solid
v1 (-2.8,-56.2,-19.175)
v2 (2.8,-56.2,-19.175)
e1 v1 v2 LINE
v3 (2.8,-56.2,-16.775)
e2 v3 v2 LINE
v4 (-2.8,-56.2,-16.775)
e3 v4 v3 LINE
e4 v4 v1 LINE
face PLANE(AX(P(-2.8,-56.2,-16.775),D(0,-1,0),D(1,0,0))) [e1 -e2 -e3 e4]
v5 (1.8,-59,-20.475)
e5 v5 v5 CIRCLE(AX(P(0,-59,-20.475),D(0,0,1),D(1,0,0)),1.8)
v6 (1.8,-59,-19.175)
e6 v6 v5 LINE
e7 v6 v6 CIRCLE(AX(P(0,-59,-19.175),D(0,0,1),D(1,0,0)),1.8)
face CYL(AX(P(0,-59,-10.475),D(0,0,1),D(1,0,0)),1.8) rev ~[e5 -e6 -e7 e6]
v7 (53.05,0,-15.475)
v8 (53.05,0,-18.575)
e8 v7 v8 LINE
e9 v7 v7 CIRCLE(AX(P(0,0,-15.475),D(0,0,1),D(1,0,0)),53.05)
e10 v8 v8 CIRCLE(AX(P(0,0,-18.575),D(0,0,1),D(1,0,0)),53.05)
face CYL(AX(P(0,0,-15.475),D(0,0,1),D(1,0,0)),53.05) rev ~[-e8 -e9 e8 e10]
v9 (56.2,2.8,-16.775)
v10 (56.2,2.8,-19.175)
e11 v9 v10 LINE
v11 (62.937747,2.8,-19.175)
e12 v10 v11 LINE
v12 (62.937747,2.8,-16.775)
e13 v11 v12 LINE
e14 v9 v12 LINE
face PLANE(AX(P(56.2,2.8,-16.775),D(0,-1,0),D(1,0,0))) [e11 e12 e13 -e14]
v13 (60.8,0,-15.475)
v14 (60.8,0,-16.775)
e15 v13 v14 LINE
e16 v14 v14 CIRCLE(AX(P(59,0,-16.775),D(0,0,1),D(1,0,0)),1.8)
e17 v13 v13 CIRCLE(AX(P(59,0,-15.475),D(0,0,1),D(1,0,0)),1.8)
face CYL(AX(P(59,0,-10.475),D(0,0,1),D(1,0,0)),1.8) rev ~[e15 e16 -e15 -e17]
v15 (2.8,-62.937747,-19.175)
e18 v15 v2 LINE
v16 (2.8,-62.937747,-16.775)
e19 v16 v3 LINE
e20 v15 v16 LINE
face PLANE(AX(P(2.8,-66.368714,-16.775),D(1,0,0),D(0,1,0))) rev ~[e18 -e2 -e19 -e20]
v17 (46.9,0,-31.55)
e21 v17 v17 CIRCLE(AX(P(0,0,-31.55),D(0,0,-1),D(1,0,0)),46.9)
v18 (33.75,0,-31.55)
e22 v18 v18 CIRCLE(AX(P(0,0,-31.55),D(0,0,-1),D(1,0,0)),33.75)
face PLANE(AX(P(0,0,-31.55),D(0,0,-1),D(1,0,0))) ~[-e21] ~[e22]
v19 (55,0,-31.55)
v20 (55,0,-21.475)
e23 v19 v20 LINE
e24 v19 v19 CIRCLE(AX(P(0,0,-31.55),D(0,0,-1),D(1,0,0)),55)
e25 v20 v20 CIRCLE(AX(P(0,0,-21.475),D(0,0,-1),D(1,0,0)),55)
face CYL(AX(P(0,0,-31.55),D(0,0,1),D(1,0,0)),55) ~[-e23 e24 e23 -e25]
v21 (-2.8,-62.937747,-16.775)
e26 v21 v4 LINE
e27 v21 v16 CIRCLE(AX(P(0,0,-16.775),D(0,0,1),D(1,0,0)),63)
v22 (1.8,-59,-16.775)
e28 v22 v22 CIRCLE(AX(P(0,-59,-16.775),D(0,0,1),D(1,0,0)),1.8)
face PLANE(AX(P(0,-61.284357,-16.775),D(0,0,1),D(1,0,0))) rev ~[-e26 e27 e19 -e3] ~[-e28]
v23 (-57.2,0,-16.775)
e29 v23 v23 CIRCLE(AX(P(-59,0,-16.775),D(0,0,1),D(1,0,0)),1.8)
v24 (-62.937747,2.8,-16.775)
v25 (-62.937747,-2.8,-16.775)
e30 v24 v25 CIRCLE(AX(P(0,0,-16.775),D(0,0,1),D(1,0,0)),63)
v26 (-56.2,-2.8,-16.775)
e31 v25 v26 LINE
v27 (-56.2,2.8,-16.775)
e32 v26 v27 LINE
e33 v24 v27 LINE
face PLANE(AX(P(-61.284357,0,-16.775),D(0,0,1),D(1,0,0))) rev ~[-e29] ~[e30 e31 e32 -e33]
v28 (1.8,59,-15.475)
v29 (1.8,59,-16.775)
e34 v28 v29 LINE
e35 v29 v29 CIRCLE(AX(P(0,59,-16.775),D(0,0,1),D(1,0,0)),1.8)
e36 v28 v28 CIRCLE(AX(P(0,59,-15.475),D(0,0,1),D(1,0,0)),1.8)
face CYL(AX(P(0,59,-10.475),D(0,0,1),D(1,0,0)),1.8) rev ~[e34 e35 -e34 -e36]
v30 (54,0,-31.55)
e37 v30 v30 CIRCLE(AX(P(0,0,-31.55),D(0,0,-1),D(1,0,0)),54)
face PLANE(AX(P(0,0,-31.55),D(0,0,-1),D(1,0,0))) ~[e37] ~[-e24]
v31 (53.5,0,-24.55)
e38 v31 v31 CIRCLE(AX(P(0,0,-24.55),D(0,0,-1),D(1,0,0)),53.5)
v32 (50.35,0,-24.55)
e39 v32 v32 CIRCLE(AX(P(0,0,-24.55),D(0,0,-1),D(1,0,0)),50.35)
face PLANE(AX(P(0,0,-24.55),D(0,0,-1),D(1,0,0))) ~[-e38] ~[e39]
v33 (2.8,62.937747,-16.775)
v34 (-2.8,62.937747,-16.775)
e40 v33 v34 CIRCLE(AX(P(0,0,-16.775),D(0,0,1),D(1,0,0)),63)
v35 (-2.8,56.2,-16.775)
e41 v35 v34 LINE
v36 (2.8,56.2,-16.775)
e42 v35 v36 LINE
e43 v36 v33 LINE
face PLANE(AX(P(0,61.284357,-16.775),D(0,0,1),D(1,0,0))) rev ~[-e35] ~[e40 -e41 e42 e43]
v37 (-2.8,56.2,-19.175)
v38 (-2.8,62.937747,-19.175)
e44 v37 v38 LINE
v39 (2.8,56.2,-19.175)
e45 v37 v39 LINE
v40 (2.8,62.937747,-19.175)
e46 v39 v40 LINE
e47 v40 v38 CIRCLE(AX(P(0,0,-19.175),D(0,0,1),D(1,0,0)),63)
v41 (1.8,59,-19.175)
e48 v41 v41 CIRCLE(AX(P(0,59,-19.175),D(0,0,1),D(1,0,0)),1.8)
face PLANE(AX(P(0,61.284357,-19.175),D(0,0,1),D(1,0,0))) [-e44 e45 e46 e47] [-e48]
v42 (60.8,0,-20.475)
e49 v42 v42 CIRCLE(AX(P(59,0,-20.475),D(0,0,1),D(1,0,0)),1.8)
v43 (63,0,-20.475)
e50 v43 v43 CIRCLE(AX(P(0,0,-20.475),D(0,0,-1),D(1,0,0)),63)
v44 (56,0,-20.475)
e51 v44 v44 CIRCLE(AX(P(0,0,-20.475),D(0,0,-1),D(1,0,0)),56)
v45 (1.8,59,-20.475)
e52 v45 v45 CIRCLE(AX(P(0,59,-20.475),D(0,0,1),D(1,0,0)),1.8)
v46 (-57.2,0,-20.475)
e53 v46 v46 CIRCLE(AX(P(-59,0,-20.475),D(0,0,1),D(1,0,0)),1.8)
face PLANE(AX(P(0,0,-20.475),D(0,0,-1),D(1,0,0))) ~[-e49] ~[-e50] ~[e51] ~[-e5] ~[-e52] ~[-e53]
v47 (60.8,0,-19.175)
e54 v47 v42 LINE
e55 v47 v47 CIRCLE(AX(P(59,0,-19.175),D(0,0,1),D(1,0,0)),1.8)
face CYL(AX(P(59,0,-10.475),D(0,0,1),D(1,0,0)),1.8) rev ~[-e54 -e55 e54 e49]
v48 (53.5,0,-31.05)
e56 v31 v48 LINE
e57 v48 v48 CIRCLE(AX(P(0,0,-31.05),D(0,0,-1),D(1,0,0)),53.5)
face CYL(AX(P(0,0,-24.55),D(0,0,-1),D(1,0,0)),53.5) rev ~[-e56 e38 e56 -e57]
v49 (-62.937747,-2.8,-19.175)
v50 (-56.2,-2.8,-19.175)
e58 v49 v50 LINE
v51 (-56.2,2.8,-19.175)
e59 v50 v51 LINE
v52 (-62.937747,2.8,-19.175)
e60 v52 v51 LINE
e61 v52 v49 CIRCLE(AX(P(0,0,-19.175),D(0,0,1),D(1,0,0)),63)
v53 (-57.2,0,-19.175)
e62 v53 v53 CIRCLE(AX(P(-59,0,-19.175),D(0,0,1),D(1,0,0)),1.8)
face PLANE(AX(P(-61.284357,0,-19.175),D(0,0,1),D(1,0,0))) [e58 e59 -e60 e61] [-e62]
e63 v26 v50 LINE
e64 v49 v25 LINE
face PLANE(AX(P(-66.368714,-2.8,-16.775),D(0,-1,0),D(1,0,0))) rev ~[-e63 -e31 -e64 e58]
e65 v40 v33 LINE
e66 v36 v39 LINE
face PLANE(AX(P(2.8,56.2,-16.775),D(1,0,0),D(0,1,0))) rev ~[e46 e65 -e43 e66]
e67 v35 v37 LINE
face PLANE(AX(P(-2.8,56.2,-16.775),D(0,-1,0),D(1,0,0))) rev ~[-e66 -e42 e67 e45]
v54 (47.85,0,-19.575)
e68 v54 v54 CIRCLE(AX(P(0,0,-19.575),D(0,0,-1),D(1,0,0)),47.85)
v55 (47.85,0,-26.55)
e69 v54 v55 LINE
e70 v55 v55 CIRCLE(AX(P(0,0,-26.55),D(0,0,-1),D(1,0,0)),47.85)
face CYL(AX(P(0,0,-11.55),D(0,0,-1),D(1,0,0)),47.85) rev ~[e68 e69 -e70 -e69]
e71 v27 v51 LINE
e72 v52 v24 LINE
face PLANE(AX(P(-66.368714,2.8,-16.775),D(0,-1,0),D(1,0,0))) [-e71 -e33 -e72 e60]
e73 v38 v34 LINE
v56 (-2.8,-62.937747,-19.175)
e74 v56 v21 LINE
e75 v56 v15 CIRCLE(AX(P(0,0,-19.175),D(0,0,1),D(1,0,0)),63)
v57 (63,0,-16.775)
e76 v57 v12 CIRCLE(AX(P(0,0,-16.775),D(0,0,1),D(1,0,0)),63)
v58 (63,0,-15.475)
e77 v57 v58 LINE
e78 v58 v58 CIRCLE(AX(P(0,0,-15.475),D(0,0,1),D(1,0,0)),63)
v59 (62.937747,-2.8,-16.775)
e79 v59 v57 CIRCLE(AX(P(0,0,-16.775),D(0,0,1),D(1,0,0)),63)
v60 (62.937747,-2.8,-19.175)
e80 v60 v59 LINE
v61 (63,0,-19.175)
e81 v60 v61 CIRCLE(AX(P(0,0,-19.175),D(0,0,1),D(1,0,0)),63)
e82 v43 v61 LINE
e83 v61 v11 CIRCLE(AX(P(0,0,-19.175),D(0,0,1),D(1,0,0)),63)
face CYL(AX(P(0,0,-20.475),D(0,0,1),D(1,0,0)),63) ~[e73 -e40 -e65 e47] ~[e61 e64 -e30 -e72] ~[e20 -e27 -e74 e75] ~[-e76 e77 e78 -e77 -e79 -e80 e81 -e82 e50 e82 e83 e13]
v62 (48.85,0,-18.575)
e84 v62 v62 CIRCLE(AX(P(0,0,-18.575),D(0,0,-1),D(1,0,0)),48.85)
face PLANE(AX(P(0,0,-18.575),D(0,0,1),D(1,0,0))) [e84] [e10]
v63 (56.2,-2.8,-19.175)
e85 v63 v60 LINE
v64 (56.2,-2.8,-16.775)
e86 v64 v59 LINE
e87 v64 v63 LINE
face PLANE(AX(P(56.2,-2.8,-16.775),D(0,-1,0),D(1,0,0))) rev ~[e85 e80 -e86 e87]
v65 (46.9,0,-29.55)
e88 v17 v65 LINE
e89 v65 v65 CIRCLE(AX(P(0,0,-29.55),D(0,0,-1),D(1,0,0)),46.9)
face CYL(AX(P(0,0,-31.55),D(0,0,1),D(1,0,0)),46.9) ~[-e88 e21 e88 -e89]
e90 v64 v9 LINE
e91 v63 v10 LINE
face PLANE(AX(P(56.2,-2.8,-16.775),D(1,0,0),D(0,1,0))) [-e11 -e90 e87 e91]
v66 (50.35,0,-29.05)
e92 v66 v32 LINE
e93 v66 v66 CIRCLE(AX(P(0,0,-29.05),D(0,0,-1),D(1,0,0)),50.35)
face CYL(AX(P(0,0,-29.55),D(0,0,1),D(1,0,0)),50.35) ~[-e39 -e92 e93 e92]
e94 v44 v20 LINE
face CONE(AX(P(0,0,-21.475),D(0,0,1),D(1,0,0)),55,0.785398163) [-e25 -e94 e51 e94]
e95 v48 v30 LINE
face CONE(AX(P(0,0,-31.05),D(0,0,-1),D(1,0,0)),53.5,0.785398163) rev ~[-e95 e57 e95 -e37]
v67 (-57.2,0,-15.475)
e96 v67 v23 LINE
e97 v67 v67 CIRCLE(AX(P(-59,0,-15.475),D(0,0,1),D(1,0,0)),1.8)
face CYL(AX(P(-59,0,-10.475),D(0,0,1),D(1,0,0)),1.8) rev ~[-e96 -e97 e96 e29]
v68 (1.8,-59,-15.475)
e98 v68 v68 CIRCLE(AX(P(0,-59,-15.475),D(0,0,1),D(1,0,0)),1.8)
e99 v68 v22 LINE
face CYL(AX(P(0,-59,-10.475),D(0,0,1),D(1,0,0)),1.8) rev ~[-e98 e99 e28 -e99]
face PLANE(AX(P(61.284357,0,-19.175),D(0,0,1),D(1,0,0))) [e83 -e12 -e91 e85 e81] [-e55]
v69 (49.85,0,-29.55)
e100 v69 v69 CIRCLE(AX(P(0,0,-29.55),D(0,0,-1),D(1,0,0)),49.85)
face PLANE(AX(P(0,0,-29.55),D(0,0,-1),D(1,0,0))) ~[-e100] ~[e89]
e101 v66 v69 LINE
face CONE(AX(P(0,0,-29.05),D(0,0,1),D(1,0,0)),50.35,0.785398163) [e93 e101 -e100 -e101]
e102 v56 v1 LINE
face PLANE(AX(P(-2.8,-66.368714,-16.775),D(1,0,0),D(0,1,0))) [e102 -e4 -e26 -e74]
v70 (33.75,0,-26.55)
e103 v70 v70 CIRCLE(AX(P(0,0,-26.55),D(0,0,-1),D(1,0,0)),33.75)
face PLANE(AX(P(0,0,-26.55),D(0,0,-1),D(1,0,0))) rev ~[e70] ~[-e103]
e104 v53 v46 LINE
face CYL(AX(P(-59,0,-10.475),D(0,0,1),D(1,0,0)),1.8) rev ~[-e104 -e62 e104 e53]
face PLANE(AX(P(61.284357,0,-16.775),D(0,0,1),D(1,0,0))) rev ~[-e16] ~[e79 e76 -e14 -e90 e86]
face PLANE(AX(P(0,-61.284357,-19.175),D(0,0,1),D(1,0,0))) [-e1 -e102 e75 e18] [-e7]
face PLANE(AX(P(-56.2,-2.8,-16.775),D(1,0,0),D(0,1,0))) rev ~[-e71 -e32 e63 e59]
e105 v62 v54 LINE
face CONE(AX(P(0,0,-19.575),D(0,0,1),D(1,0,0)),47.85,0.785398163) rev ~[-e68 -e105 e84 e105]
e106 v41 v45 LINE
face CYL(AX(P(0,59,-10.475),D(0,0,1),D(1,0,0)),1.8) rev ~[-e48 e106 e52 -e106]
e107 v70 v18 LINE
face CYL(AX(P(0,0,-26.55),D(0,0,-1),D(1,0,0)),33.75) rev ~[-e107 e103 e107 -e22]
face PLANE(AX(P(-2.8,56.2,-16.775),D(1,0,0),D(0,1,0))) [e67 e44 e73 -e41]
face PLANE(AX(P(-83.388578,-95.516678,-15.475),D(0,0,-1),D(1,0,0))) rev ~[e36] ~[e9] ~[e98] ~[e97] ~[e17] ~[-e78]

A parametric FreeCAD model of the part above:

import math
import FreeCAD as App
import Part
import Sketcher

V = App.Vector
Q = App.Units.Quantity


def edges_at(feature, points):
    """Names of the edges that pass closest to the given points."""
    edges = feature.Shape.Edges
    near = lambda p: min(range(len(edges)), key=lambda i: edges[i].distToShape(Part.Vertex(*p))[0])
    return sorted({f"Edge{near(p) + 1}" for p in points})

doc = App.newDocument("Part")
body = doc.addObject("PartDesign::Body", "Body")

# Sketch on XZ plane
sketch1 = doc.addObject("Sketcher::SketchObject", "Sketch")
body.addObject(sketch1)
sketch1.AttachmentSupport = (doc.XZ_Plane, [""])
sketch1.MapMode = "FlatFace"
sketch1.addGeometry(Part.LineSegment(V(43, -5.5, 0), V(43, 0, 0)), False)
sketch1.addGeometry(Part.LineSegment(V(43, 0, 0), V(55, 0, 0)), False)
sketch1.addGeometry(Part.LineSegment(V(55, 0, 0), V(55, -10.5, 0)), False)
sketch1.addGeometry(Part.LineSegment(V(55, -10.5, 0), V(63, -10.5, 0)), False)
sketch1.addGeometry(Part.LineSegment(V(63, -10.5, 0), V(63, -20.5, 0)), False)
sketch1.addGeometry(Part.LineSegment(V(63, -20.5, 0), V(55, -20.5, 0)), False)
sketch1.addGeometry(Part.LineSegment(V(55, -20.5, 0), V(55, -31.6, 0)), False)
sketch1.addGeometry(Part.LineSegment(V(55, -31.6, 0), V(53.5, -31.6, 0)), False)
sketch1.addGeometry(Part.LineSegment(V(53.5, -31.6, 0), V(53.5, -24.6, 0)), False)
sketch1.addGeometry(Part.LineSegment(V(53.5, -24.6, 0), V(50.4, -24.6, 0)), False)
sketch1.addGeometry(Part.LineSegment(V(50.4, -24.6, 0), V(50.4, -29.6, 0)), False)
sketch1.addGeometry(Part.LineSegment(V(50.4, -29.6, 0), V(46.9, -29.6, 0)), False)
sketch1.addGeometry(Part.LineSegment(V(46.9, -29.6, 0), V(46.9, -31.6, 0)), False)
sketch1.addGeometry(Part.LineSegment(V(46.9, -31.6, 0), V(33.8, -31.6, 0)), False)
sketch1.addGeometry(Part.LineSegment(V(33.8, -31.6, 0), V(33.8, -26.6, 0)), False)
sketch1.addGeometry(Part.LineSegment(V(33.8, -26.6, 0), V(47.9, -26.6, 0)), False)
sketch1.addGeometry(Part.LineSegment(V(47.9, -26.6, 0), V(47.9, -11.6, 0)), False)
sketch1.addGeometry(Part.LineSegment(V(47.9, -11.6, 0), V(33.8, -11.6, 0)), False)
sketch1.addGeometry(Part.LineSegment(V(33.8, -11.6, 0), V(33.8, -8.1, 0)), False)
sketch1.addGeometry(Part.LineSegment(V(33.8, -8.1, 0), V(40, -8.1, 0)), False)
sketch1.addGeometry(Part.LineSegment(V(40, -8.1, 0), V(40, -5.5, 0)), False)
sketch1.addGeometry(Part.LineSegment(V(40, -5.5, 0), V(43, -5.5, 0)), False)
sketch1.addConstraint(Sketcher.Constraint("Coincident", 0, 2, 1, 1))
sketch1.addConstraint(Sketcher.Constraint("Coincident", 1, 2, 2, 1))
sketch1.addConstraint(Sketcher.Constraint("Coincident", 2, 2, 3, 1))
sketch1.addConstraint(Sketcher.Constraint("Coincident", 3, 2, 4, 1))
sketch1.addConstraint(Sketcher.Constraint("Coincident", 4, 2, 5, 1))
sketch1.addConstraint(Sketcher.Constraint("Coincident", 5, 2, 6, 1))
sketch1.addConstraint(Sketcher.Constraint("Coincident", 6, 2, 7, 1))
sketch1.addConstraint(Sketcher.Constraint("Coincident", 7, 2, 8, 1))
sketch1.addConstraint(Sketcher.Constraint("Coincident", 8, 2, 9, 1))
sketch1.addConstraint(Sketcher.Constraint("Coincident", 9, 2, 10, 1))
sketch1.addConstraint(Sketcher.Constraint("Coincident", 10, 2, 11, 1))
sketch1.addConstraint(Sketcher.Constraint("Coincident", 11, 2, 12, 1))
sketch1.addConstraint(Sketcher.Constraint("Coincident", 12, 2, 13, 1))
sketch1.addConstraint(Sketcher.Constraint("Coincident", 13, 2, 14, 1))
sketch1.addConstraint(Sketcher.Constraint("Coincident", 14, 2, 15, 1))
sketch1.addConstraint(Sketcher.Constraint("Coincident", 15, 2, 16, 1))
sketch1.addConstraint(Sketcher.Constraint("Coincident", 16, 2, 17, 1))
sketch1.addConstraint(Sketcher.Constraint("Coincident", 17, 2, 18, 1))
sketch1.addConstraint(Sketcher.Constraint("Coincident", 18, 2, 19, 1))
sketch1.addConstraint(Sketcher.Constraint("Coincident", 19, 2, 20, 1))
sketch1.addConstraint(Sketcher.Constraint("Coincident", 20, 2, 21, 1))
sketch1.addConstraint(Sketcher.Constraint("Coincident", 21, 2, 0, 1))
sketch1.addConstraint(Sketcher.Constraint("Vertical", 0))
sketch1.addConstraint(Sketcher.Constraint("Horizontal", 1))
sketch1.addConstraint(Sketcher.Constraint("Vertical", 2))
sketch1.addConstraint(Sketcher.Constraint("Horizontal", 3))
sketch1.addConstraint(Sketcher.Constraint("Vertical", 4))
sketch1.addConstraint(Sketcher.Constraint("Horizontal", 5))
sketch1.addConstraint(Sketcher.Constraint("Vertical", 6))
sketch1.addConstraint(Sketcher.Constraint("Horizontal", 7))
sketch1.addConstraint(Sketcher.Constraint("Vertical", 8))
sketch1.addConstraint(Sketcher.Constraint("Horizontal", 9))
sketch1.addConstraint(Sketcher.Constraint("Vertical", 10))
sketch1.addConstraint(Sketcher.Constraint("Horizontal", 11))
sketch1.addConstraint(Sketcher.Constraint("Vertical", 12))
sketch1.addConstraint(Sketcher.Constraint("Horizontal", 13))
sketch1.addConstraint(Sketcher.Constraint("Vertical", 14))
sketch1.addConstraint(Sketcher.Constraint("Horizontal", 15))
sketch1.addConstraint(Sketcher.Constraint("Vertical", 16))
sketch1.addConstraint(Sketcher.Constraint("Horizontal", 17))
sketch1.addConstraint(Sketcher.Constraint("Vertical", 18))
sketch1.addConstraint(Sketcher.Constraint("Horizontal", 19))
sketch1.addConstraint(Sketcher.Constraint("Vertical", 20))
sketch1.addConstraint(Sketcher.Constraint("Horizontal", 21))
sketch1.addConstraint(Sketcher.Constraint("PointOnObject", 0, 2, -1))
sketch1.addConstraint(Sketcher.Constraint("Horizontal", 7, 2, 12, 2))
sketch1.addConstraint(Sketcher.Constraint("Vertical", 2, 2, 5, 2))
sketch1.addConstraint(Sketcher.Constraint("Vertical", 14, 2, 17, 2))
sketch1.addConstraint(Sketcher.Constraint("Equal", 10, 14))
sketch1.addConstraint(Sketcher.Constraint("DistanceX", 3, 1, 3, 2, Q("8 mm")))
sketch1.addConstraint(Sketcher.Constraint("DistanceY", 4, 2, 4, 1, Q("10 mm")))
sketch1.addConstraint(Sketcher.Constraint("DistanceY", 8, 1, 8, 2, Q("7 mm")))
sketch1.addConstraint(Sketcher.Constraint("DistanceY", 10, 2, 10, 1, Q("5 mm")))
sketch1.addConstraint(Sketcher.Constraint("DistanceY", 16, 1, 16, 2, Q("15 mm")))
sketch1.addConstraint(Sketcher.Constraint("DistanceX", 7, 2, 7, 1, Q("1.5 mm")))
sketch1.addConstraint(Sketcher.Constraint("DistanceX", 15, 1, 15, 2, Q("14.1 mm")))
sketch1.addConstraint(Sketcher.Constraint("DistanceY", 0, 1, 0, 2, Q("5.5 mm")))
sketch1.addConstraint(Sketcher.Constraint("DistanceY", 18, 1, 18, 2, Q("3.5 mm")))
sketch1.addConstraint(Sketcher.Constraint("DistanceX", -1, 1, 1, 2, Q("55 mm")))
sketch1.addConstraint(Sketcher.Constraint("DistanceX", 1, 1, 1, 2, Q("11.95 mm")))
sketch1.addConstraint(Sketcher.Constraint("DistanceX", 9, 2, 9, 1, Q("3.15 mm")))
sketch1.addConstraint(Sketcher.Constraint("DistanceX", 11, 2, 11, 1, Q("3.45 mm")))
sketch1.addConstraint(Sketcher.Constraint("DistanceX", 13, 2, 13, 1, Q("13.15 mm")))
sketch1.addConstraint(Sketcher.Constraint("DistanceY", 20, 1, 20, 2, Q("2.55 mm")))
sketch1.addConstraint(Sketcher.Constraint("DistanceX", 19, 1, 19, 2, Q("6.275 mm")))
sketch1.addConstraint(Sketcher.Constraint("DistanceY", 2, 2, 2, 1, Q("10.475 mm")))
revolution = doc.addObject("PartDesign::Revolution", "Revolution")
body.addObject(revolution)
revolution.Profile = sketch1
revolution.ReferenceAxis = (sketch1, ["V_Axis"])
revolution.Angle = 360

# Sketch on XY plane
sketch2 = doc.addObject("Sketcher::SketchObject", "Sketch001")
body.addObject(sketch2)
sketch2.AttachmentSupport = (doc.XY_Plane, [""])
sketch2.MapMode = "FlatFace"
sketch2.addGeometry(Part.Circle(V(0, 50, 0), V(0, 0, 1), 1.8), False)
sketch2.addGeometry(Part.Circle(V(43.3, 25, 0), V(0, 0, 1), 1.8), False)
sketch2.addGeometry(Part.Circle(V(43.3, -25, 0), V(0, 0, 1), 1.8), False)
sketch2.addGeometry(Part.Circle(V(0, -50, 0), V(0, 0, 1), 1.8), False)
sketch2.addGeometry(Part.Circle(V(-43.3, -25, 0), V(0, 0, 1), 1.8), False)
sketch2.addGeometry(Part.Circle(V(-43.3, 25, 0), V(0, 0, 1), 1.8), False)
sketch2.addConstraint(Sketcher.Constraint("Equal", 0, 1))
sketch2.addConstraint(Sketcher.Constraint("Equal", 1, 2))
sketch2.addConstraint(Sketcher.Constraint("Equal", 2, 3))
sketch2.addConstraint(Sketcher.Constraint("Equal", 3, 4))
sketch2.addConstraint(Sketcher.Constraint("Equal", 4, 5))
sketch2.addConstraint(Sketcher.Constraint("Symmetric", 0, 3, 3, 3, -1, 1))
sketch2.addConstraint(Sketcher.Constraint("Symmetric", 1, 3, 4, 3, -1, 1))
sketch2.addConstraint(Sketcher.Constraint("Symmetric", 2, 3, 5, 3, -1, 1))
sketch2.addConstraint(Sketcher.Constraint("Symmetric", 2, 3, 4, 3, -2))
sketch2.addConstraint(Sketcher.Constraint("PointOnObject", 0, 3, -2))
sketch2.addConstraint(Sketcher.Constraint("Diameter", 0, Q("3.6 mm")))
sketch2.addConstraint(Sketcher.Constraint("DistanceY", -1, 1, 0, 3, Q("50 mm")))
sketch2.addConstraint(Sketcher.Constraint("DistanceY", -1, 1, 1, 3, Q("25 mm")))
sketch2.addConstraint(Sketcher.Constraint("DistanceX", -1, 1, 1, 3, Q("43.30127 mm")))
pocket1 = doc.addObject("PartDesign::Pocket", "Pocket")
body.addObject(pocket1)
pocket1.Profile = sketch2
pocket1.Length = 10

# Sketch on XY plane
sketch3 = doc.addObject("Sketcher::SketchObject", "Sketch002")
body.addObject(sketch3)
sketch3.AttachmentSupport = (doc.XY_Plane, [""])
sketch3.MapMode = "FlatFace"
sketch3.AttachmentOffset = App.Placement(V(0, 0, -5), App.Rotation())
sketch3.addGeometry(Part.LineSegment(V(-3, 58, 0), V(-3, 47, 0)), False)
sketch3.addGeometry(Part.LineSegment(V(-3, 47, 0), V(3, 47, 0)), False)
sketch3.addGeometry(Part.LineSegment(V(3, 47, 0), V(3, 58, 0)), False)
sketch3.addGeometry(Part.LineSegment(V(3, 58, 0), V(-3, 58, 0)), False)
sketch3.addGeometry(Part.LineSegment(V(52, 27, 0), V(49, 31, 0)), False)
sketch3.addGeometry(Part.LineSegment(V(49, 31, 0), V(39, 26, 0)), False)
sketch3.addGeometry(Part.LineSegment(V(39, 26, 0), V(42, 21, 0)), False)
sketch3.addGeometry(Part.LineSegment(V(42, 21, 0), V(52, 27, 0)), False)
sketch3.addGeometry(Part.LineSegment(V(49, -31, 0), V(52, -27, 0)), False)
sketch3.addGeometry(Part.LineSegment(V(52, -27, 0), V(42, -21, 0)), False)
sketch3.addGeometry(Part.LineSegment(V(42, -21, 0), V(39, -26, 0)), False)
sketch3.addGeometry(Part.LineSegment(V(39, -26, 0), V(49, -31, 0)), False)
sketch3.addGeometry(Part.LineSegment(V(-3, -47, 0), V(-3, -58, 0)), False)
sketch3.addGeometry(Part.LineSegment(V(-3, -58, 0), V(3, -58, 0)), False)
sketch3.addGeometry(Part.LineSegment(V(3, -58, 0), V(3, -47, 0)), False)
sketch3.addGeometry(Part.LineSegment(V(3, -47, 0), V(-3, -47, 0)), False)
sketch3.addGeometry(Part.LineSegment(V(-52, -27, 0), V(-49, -31, 0)), False)
sketch3.addGeometry(Part.LineSegment(V(-49, -31, 0), V(-39, -26, 0)), False)
sketch3.addGeometry(Part.LineSegment(V(-39, -26, 0), V(-42, -21, 0)), False)
sketch3.addGeometry(Part.LineSegment(V(-42, -21, 0), V(-52, -27, 0)), False)
sketch3.addGeometry(Part.LineSegment(V(-49, 31, 0), V(-52, 27, 0)), False)
sketch3.addGeometry(Part.LineSegment(V(-52, 27, 0), V(-42, 21, 0)), False)
sketch3.addGeometry(Part.LineSegment(V(-42, 21, 0), V(-39, 26, 0)), False)
sketch3.addGeometry(Part.LineSegment(V(-39, 26, 0), V(-49, 31, 0)), False)
sketch3.addConstraint(Sketcher.Constraint("Coincident", 0, 2, 1, 1))
sketch3.addConstraint(Sketcher.Constraint("Coincident", 1, 2, 2, 1))
sketch3.addConstraint(Sketcher.Constraint("Coincident", 2, 2, 3, 1))
sketch3.addConstraint(Sketcher.Constraint("Coincident", 3, 2, 0, 1))
sketch3.addConstraint(Sketcher.Constraint("Coincident", 4, 2, 5, 1))
sketch3.addConstraint(Sketcher.Constraint("Coincident", 5, 2, 6, 1))
sketch3.addConstraint(Sketcher.Constraint("Coincident", 6, 2, 7, 1))
sketch3.addConstraint(Sketcher.Constraint("Coincident", 7, 2, 4, 1))
sketch3.addConstraint(Sketcher.Constraint("Coincident", 8, 2, 9, 1))
sketch3.addConstraint(Sketcher.Constraint("Coincident", 9, 2, 10, 1))
sketch3.addConstraint(Sketcher.Constraint("Coincident", 10, 2, 11, 1))
sketch3.addConstraint(Sketcher.Constraint("Coincident", 11, 2, 8, 1))
sketch3.addConstraint(Sketcher.Constraint("Coincident", 12, 2, 13, 1))
sketch3.addConstraint(Sketcher.Constraint("Coincident", 13, 2, 14, 1))
sketch3.addConstraint(Sketcher.Constraint("Coincident", 14, 2, 15, 1))
sketch3.addConstraint(Sketcher.Constraint("Coincident", 15, 2, 12, 1))
sketch3.addConstraint(Sketcher.Constraint("Coincident", 16, 2, 17, 1))
sketch3.addConstraint(Sketcher.Constraint("Coincident", 17, 2, 18, 1))
sketch3.addConstraint(Sketcher.Constraint("Coincident", 18, 2, 19, 1))
sketch3.addConstraint(Sketcher.Constraint("Coincident", 19, 2, 16, 1))
sketch3.addConstraint(Sketcher.Constraint("Coincident", 20, 2, 21, 1))
sketch3.addConstraint(Sketcher.Constraint("Coincident", 21, 2, 22, 1))
sketch3.addConstraint(Sketcher.Constraint("Coincident", 22, 2, 23, 1))
sketch3.addConstraint(Sketcher.Constraint("Coincident", 23, 2, 20, 1))
sketch3.addConstraint(Sketcher.Constraint("Vertical", 0))
sketch3.addConstraint(Sketcher.Constraint("Horizontal", 1))
sketch3.addConstraint(Sketcher.Constraint("Vertical", 2))
sketch3.addConstraint(Sketcher.Constraint("Horizontal", 3))
sketch3.addConstraint(Sketcher.Constraint("Vertical", 12))
sketch3.addConstraint(Sketcher.Constraint("Horizontal", 13))
sketch3.addConstraint(Sketcher.Constraint("Vertical", 14))
sketch3.addConstraint(Sketcher.Constraint("Horizontal", 15))
sketch3.addConstraint(Sketcher.Constraint("Symmetric", 2, 2, 12, 2, -1, 1))
sketch3.addConstraint(Sketcher.Constraint("Symmetric", 0, 2, 14, 2, -1, 1))
sketch3.addConstraint(Sketcher.Constraint("Symmetric", 4, 2, 16, 2, -1, 1))
sketch3.addConstraint(Sketcher.Constraint("Symmetric", 5, 2, 17, 2, -1, 1))
sketch3.addConstraint(Sketcher.Constraint("Symmetric", 6, 2, 18, 2, -1, 1))
sketch3.addConstraint(Sketcher.Constraint("Symmetric", 7, 2, 19, 2, -1, 1))
sketch3.addConstraint(Sketcher.Constraint("Symmetric", 8, 2, 20, 2, -1, 1))
sketch3.addConstraint(Sketcher.Constraint("Symmetric", 9, 2, 21, 2, -1, 1))
sketch3.addConstraint(Sketcher.Constraint("Symmetric", 10, 2, 22, 2, -1, 1))
sketch3.addConstraint(Sketcher.Constraint("Symmetric", 11, 2, 23, 2, -1, 1))
sketch3.addConstraint(Sketcher.Constraint("Symmetric", 11, 2, 16, 2, -2))
sketch3.addConstraint(Sketcher.Constraint("Symmetric", 10, 2, 17, 2, -2))
sketch3.addConstraint(Sketcher.Constraint("Symmetric", 9, 2, 18, 2, -2))
sketch3.addConstraint(Sketcher.Constraint("Symmetric", 8, 2, 19, 2, -2))
sketch3.addConstraint(Sketcher.Constraint("Perpendicular", 4, 5))
sketch3.addConstraint(Sketcher.Constraint("Perpendicular", 5, 6))
sketch3.addConstraint(Sketcher.Constraint("Perpendicular", 6, 7))
sketch3.addConstraint(Sketcher.Constraint("Vertical", 3, 2, 12, 2))
sketch3.addConstraint(Sketcher.Constraint("Angle", 4, Q("120 deg")))
sketch3.addConstraint(Sketcher.Constraint("DistanceX", 1, 1, 1, 2, Q("5.6 mm")))
sketch3.addConstraint(Sketcher.Constraint("Distance", 4, Q("5.6 mm")))
sketch3.addConstraint(Sketcher.Constraint("DistanceY", -1, 1, 0, 2, Q("47.2 mm")))
sketch3.addConstraint(Sketcher.Constraint("DistanceY", 9, 2, 5, 2, Q("47.2 mm")))
sketch3.addConstraint(Sketcher.Constraint("DistanceX", -1, 1, 5, 2, Q("39.476399 mm")))
sketch3.addConstraint(Sketcher.Constraint("DistanceY", 0, 2, 0, 1, Q("10.691434 mm")))
sketch3.addConstraint(Sketcher.Constraint("DistanceY", -1, 1, 4, 2, Q("31.370588 mm")))
pocket2 = doc.addObject("PartDesign::Pocket", "Pocket001")
body.addObject(pocket2)
pocket2.Profile = sketch3
pocket2.Length = 2.4

# Sketch on XY plane
sketch4 = doc.addObject("Sketcher::SketchObject", "Sketch003")
body.addObject(sketch4)
sketch4.AttachmentSupport = (doc.XY_Plane, [""])
sketch4.MapMode = "FlatFace"
sketch4.AttachmentOffset = App.Placement(V(0, 0, -5.5), App.Rotation())
sketch4.addGeometry(Part.LineSegment(V(-2.5, 43, 0), V(-2.5, 39.9, 0)), False)
sketch4.addGeometry(Part.ArcOfCircle(Part.Circle(V(0, 0, 0), V(0, 0, 1), 40), math.radians(86.49), math.radians(93.51)), False)
sketch4.addGeometry(Part.LineSegment(V(2.5, 39.9, 0), V(2.5, 43, 0)), False)
sketch4.addGeometry(Part.ArcOfCircle(Part.Circle(V(0, 0, 0), V(0, 0, 1), 43), math.radians(86.74), math.radians(93.26)), False)
sketch4.addConstraint(Sketcher.Constraint("Coincident", 0, 2, 1, 2))
sketch4.addConstraint(Sketcher.Constraint("Coincident", 1, 1, 2, 1))
sketch4.addConstraint(Sketcher.Constraint("Coincident", 2, 2, 3, 1))
sketch4.addConstraint(Sketcher.Constraint("Coincident", 3, 2, 0, 1))
sketch4.addConstraint(Sketcher.Constraint("Vertical", 0))
sketch4.addConstraint(Sketcher.Constraint("Vertical", 2))
sketch4.addConstraint(Sketcher.Constraint("Coincident", 1, 3, -1, 1))
sketch4.addConstraint(Sketcher.Constraint("Coincident", 3, 3, -1, 1))
sketch4.addConstraint(Sketcher.Constraint("Horizontal", 0, 2, 1, 1))
sketch4.addConstraint(Sketcher.Constraint("Radius", 3, Q("43.05 mm")))
sketch4.addConstraint(Sketcher.Constraint("Radius", 1, Q("40.025 mm")))
sketch4.addConstraint(Sketcher.Constraint("DistanceX", 0, 2, 1, 1, Q("4.9 mm")))
pad1 = doc.addObject("PartDesign::Pad", "Pad")
body.addObject(pad1)
pad1.Profile = sketch4
pad1.Length = 2.5

# Sketch on XY plane
sketch5 = doc.addObject("Sketcher::SketchObject", "Sketch004")
body.addObject(sketch5)
sketch5.AttachmentSupport = (doc.XY_Plane, [""])
sketch5.MapMode = "FlatFace"
sketch5.AttachmentOffset = App.Placement(V(0, 0, -10.475), App.Rotation())
sketch5.addGeometry(Part.Circle(V(0, 59, 0), V(0, 0, 1), 1.8), False)
sketch5.addGeometry(Part.Circle(V(59, 0, 0), V(0, 0, 1), 1.8), False)
sketch5.addGeometry(Part.Circle(V(0, -59, 0), V(0, 0, 1), 1.8), False)
sketch5.addGeometry(Part.Circle(V(-59, 0, 0), V(0, 0, 1), 1.8), False)
sketch5.addConstraint(Sketcher.Constraint("Equal", 0, 1))
sketch5.addConstraint(Sketcher.Constraint("Equal", 1, 2))
sketch5.addConstraint(Sketcher.Constraint("Equal", 2, 3))
sketch5.addConstraint(Sketcher.Constraint("Symmetric", 0, 3, 2, 3, -1, 1))
sketch5.addConstraint(Sketcher.Constraint("Symmetric", 1, 3, 3, 3, -1, 1))
sketch5.addConstraint(Sketcher.Constraint("PointOnObject", 0, 3, -2))
sketch5.addConstraint(Sketcher.Constraint("PointOnObject", 1, 3, -1))
sketch5.addConstraint(Sketcher.Constraint("Diameter", 0, Q("3.6 mm")))
sketch5.addConstraint(Sketcher.Constraint("DistanceY", -1, 1, 0, 3, Q("59 mm")))
sketch5.addConstraint(Sketcher.Constraint("DistanceX", -1, 1, 1, 3, Q("59 mm")))
pocket3 = doc.addObject("PartDesign::Pocket", "Pocket002")
body.addObject(pocket3)
pocket3.Profile = sketch5
pocket3.Type = "ThroughAll"

# Sketch on XY plane
sketch6 = doc.addObject("Sketcher::SketchObject", "Sketch005")
body.addObject(sketch6)
sketch6.AttachmentSupport = (doc.XY_Plane, [""])
sketch6.MapMode = "FlatFace"
sketch6.AttachmentOffset = App.Placement(V(0, 0, -16.775), App.Rotation())
sketch6.addGeometry(Part.LineSegment(V(-3, 66, 0), V(-3, 56, 0)), False)
sketch6.addGeometry(Part.LineSegment(V(-3, 56, 0), V(3, 56, 0)), False)
sketch6.addGeometry(Part.LineSegment(V(3, 56, 0), V(3, 66, 0)), False)
sketch6.addGeometry(Part.LineSegment(V(3, 66, 0), V(-3, 66, 0)), False)
sketch6.addGeometry(Part.LineSegment(V(56, 3, 0), V(56, -3, 0)), False)
sketch6.addGeometry(Part.LineSegment(V(56, -3, 0), V(66, -3, 0)), False)
sketch6.addGeometry(Part.LineSegment(V(66, -3, 0), V(66, 3, 0)), False)
sketch6.addGeometry(Part.LineSegment(V(66, 3, 0), V(56, 3, 0)), False)
sketch6.addGeometry(Part.LineSegment(V(-3, -56, 0), V(-3, -66, 0)), False)
sketch6.addGeometry(Part.LineSegment(V(-3, -66, 0), V(3, -66, 0)), False)
sketch6.addGeometry(Part.LineSegment(V(3, -66, 0), V(3, -56, 0)), False)
sketch6.addGeometry(Part.LineSegment(V(3, -56, 0), V(-3, -56, 0)), False)
sketch6.addGeometry(Part.LineSegment(V(-66, 3, 0), V(-66, -3, 0)), False)
sketch6.addGeometry(Part.LineSegment(V(-66, -3, 0), V(-56, -3, 0)), False)
sketch6.addGeometry(Part.LineSegment(V(-56, -3, 0), V(-56, 3, 0)), False)
sketch6.addGeometry(Part.LineSegment(V(-56, 3, 0), V(-66, 3, 0)), False)
sketch6.addConstraint(Sketcher.Constraint("Coincident", 0, 2, 1, 1))
sketch6.addConstraint(Sketcher.Constraint("Coincident", 1, 2, 2, 1))
sketch6.addConstraint(Sketcher.Constraint("Coincident", 2, 2, 3, 1))
sketch6.addConstraint(Sketcher.Constraint("Coincident", 3, 2, 0, 1))
sketch6.addConstraint(Sketcher.Constraint("Coincident", 4, 2, 5, 1))
sketch6.addConstraint(Sketcher.Constraint("Coincident", 5, 2, 6, 1))
sketch6.addConstraint(Sketcher.Constraint("Coincident", 6, 2, 7, 1))
sketch6.addConstraint(Sketcher.Constraint("Coincident", 7, 2, 4, 1))
sketch6.addConstraint(Sketcher.Constraint("Coincident", 8, 2, 9, 1))
sketch6.addConstraint(Sketcher.Constraint("Coincident", 9, 2, 10, 1))
sketch6.addConstraint(Sketcher.Constraint("Coincident", 10, 2, 11, 1))
sketch6.addConstraint(Sketcher.Constraint("Coincident", 11, 2, 8, 1))
sketch6.addConstraint(Sketcher.Constraint("Coincident", 12, 2, 13, 1))
sketch6.addConstraint(Sketcher.Constraint("Coincident", 13, 2, 14, 1))
sketch6.addConstraint(Sketcher.Constraint("Coincident", 14, 2, 15, 1))
sketch6.addConstraint(Sketcher.Constraint("Coincident", 15, 2, 12, 1))
sketch6.addConstraint(Sketcher.Constraint("Vertical", 0))
sketch6.addConstraint(Sketcher.Constraint("Horizontal", 1))
sketch6.addConstraint(Sketcher.Constraint("Vertical", 2))
sketch6.addConstraint(Sketcher.Constraint("Horizontal", 3))
sketch6.addConstraint(Sketcher.Constraint("Vertical", 4))
sketch6.addConstraint(Sketcher.Constraint("Horizontal", 5))
sketch6.addConstraint(Sketcher.Constraint("Vertical", 6))
sketch6.addConstraint(Sketcher.Constraint("Horizontal", 7))
sketch6.addConstraint(Sketcher.Constraint("Vertical", 8))
sketch6.addConstraint(Sketcher.Constraint("Horizontal", 9))
sketch6.addConstraint(Sketcher.Constraint("Vertical", 10))
sketch6.addConstraint(Sketcher.Constraint("Horizontal", 11))
sketch6.addConstraint(Sketcher.Constraint("Vertical", 12))
sketch6.addConstraint(Sketcher.Constraint("Horizontal", 13))
sketch6.addConstraint(Sketcher.Constraint("Vertical", 14))
sketch6.addConstraint(Sketcher.Constraint("Horizontal", 15))
sketch6.addConstraint(Sketcher.Constraint("Symmetric", 2, 2, 8, 2, -1, 1))
sketch6.addConstraint(Sketcher.Constraint("Symmetric", 0, 2, 10, 2, -1, 1))
sketch6.addConstraint(Sketcher.Constraint("Symmetric", 6, 2, 12, 2, -1, 1))
sketch6.addConstraint(Sketcher.Constraint("Symmetric", 4, 2, 14, 2, -1, 1))
sketch6.addConstraint(Sketcher.Constraint("Horizontal", 5, 2, 12, 2))
sketch6.addConstraint(Sketcher.Constraint("Vertical", 3, 2, 8, 2))
sketch6.addConstraint(Sketcher.Constraint("Equal", 15, 0))
sketch6.addConstraint(Sketcher.Constraint("Equal", 11, 4))
sketch6.addConstraint(Sketcher.Constraint("DistanceX", 1, 1, 1, 2, Q("5.6 mm")))
sketch6.addConstraint(Sketcher.Constraint("DistanceY", 4, 2, 1, 2, Q("59 mm")))
sketch6.addConstraint(Sketcher.Constraint("DistanceX", 0, 2, 4, 2, Q("59 mm")))
sketch6.addConstraint(Sketcher.Constraint("DistanceX", 5, 1, 5, 2, Q("10.168714 mm")))
pocket4 = doc.addObject("PartDesign::Pocket", "Pocket003")
body.addObject(pocket4)
pocket4.Profile = sketch6
pocket4.Length = 2.4

# Sketch on XZ plane
sketch7 = doc.addObject("Sketcher::SketchObject", "Sketch006")
body.addObject(sketch7)
sketch7.AttachmentSupport = (doc.XZ_Plane, [""])
sketch7.MapMode = "FlatFace"
sketch7.addGeometry(Part.LineSegment(V(-83, -15, 0), V(-83, 14, 0)), False)
sketch7.addGeometry(Part.LineSegment(V(-83, 14, 0), V(76, 14, 0)), False)
sketch7.addGeometry(Part.LineSegment(V(76, 14, 0), V(76, -15, 0)), False)
sketch7.addGeometry(Part.LineSegment(V(76, -15, 0), V(-83, -15, 0)), False)
sketch7.addConstraint(Sketcher.Constraint("Coincident", 0, 2, 1, 1))
sketch7.addConstraint(Sketcher.Constraint("Coincident", 1, 2, 2, 1))
sketch7.addConstraint(Sketcher.Constraint("Coincident", 2, 2, 3, 1))
sketch7.addConstraint(Sketcher.Constraint("Coincident", 3, 2, 0, 1))
sketch7.addConstraint(Sketcher.Constraint("Vertical", 0))
sketch7.addConstraint(Sketcher.Constraint("Horizontal", 1))
sketch7.addConstraint(Sketcher.Constraint("Vertical", 2))
sketch7.addConstraint(Sketcher.Constraint("Horizontal", 3))
sketch7.addConstraint(Sketcher.Constraint("DistanceY", 2, 2, -1, 1, Q("15.475 mm")))
sketch7.addConstraint(Sketcher.Constraint("DistanceY", 0, 1, 0, 2, Q("29.82336 mm")))
sketch7.addConstraint(Sketcher.Constraint("DistanceX", 1, 1, 1, 2, Q("158.937204 mm")))
sketch7.addConstraint(Sketcher.Constraint("DistanceX", 0, 2, -1, 1, Q("83.388578 mm")))
pocket5 = doc.addObject("PartDesign::Pocket", "Pocket004")
body.addObject(pocket5)
pocket5.Profile = sketch7
pocket5.Type = "ThroughAll"
pocket5.Midplane = True

# Sketch on XY plane
sketch8 = doc.addObject("Sketcher::SketchObject", "Sketch007")
body.addObject(sketch8)
sketch8.AttachmentSupport = (doc.XY_Plane, [""])
sketch8.MapMode = "FlatFace"
sketch8.AttachmentOffset = App.Placement(V(0, 0, -15.475), App.Rotation())
sketch8.addGeometry(Part.Circle(V(0, 0, 0), V(0, 0, 1), 53), False)
sketch8.addConstraint(Sketcher.Constraint("Coincident", 0, 3, -1, 1))
sketch8.addConstraint(Sketcher.Constraint("Diameter", 0, Q("106.1 mm")))
pocket6 = doc.addObject("PartDesign::Pocket", "Pocket005")
body.addObject(pocket6)
pocket6.Profile = sketch8
pocket6.Length = 3.1
doc.recompute()

chamfer = doc.addObject("PartDesign::Chamfer", "Chamfer")
body.addObject(chamfer)
chamfer.Base = (pocket6, edges_at(pocket6, [(-55, 0, -20.475)]))
chamfer.Size = 1
doc.recompute()

chamfer2 = doc.addObject("PartDesign::Chamfer", "Chamfer001")
body.addObject(chamfer2)
chamfer2.Base = (chamfer, edges_at(chamfer, [(-50.35, 0, -29.55)]))
chamfer2.Size = 0.5
doc.recompute()

chamfer3 = doc.addObject("PartDesign::Chamfer", "Chamfer002")
body.addObject(chamfer3)
chamfer3.Base = (chamfer2, edges_at(chamfer2, [(-53.5, 0, -31.55)]))
chamfer3.Size = 0.5
doc.recompute()

chamfer4 = doc.addObject("PartDesign::Chamfer", "Chamfer003")
body.addObject(chamfer4)
chamfer4.Base = (chamfer3, edges_at(chamfer3, [(-47.85, 0, -18.575)]))
chamfer4.Size = 1

doc.recompute()
